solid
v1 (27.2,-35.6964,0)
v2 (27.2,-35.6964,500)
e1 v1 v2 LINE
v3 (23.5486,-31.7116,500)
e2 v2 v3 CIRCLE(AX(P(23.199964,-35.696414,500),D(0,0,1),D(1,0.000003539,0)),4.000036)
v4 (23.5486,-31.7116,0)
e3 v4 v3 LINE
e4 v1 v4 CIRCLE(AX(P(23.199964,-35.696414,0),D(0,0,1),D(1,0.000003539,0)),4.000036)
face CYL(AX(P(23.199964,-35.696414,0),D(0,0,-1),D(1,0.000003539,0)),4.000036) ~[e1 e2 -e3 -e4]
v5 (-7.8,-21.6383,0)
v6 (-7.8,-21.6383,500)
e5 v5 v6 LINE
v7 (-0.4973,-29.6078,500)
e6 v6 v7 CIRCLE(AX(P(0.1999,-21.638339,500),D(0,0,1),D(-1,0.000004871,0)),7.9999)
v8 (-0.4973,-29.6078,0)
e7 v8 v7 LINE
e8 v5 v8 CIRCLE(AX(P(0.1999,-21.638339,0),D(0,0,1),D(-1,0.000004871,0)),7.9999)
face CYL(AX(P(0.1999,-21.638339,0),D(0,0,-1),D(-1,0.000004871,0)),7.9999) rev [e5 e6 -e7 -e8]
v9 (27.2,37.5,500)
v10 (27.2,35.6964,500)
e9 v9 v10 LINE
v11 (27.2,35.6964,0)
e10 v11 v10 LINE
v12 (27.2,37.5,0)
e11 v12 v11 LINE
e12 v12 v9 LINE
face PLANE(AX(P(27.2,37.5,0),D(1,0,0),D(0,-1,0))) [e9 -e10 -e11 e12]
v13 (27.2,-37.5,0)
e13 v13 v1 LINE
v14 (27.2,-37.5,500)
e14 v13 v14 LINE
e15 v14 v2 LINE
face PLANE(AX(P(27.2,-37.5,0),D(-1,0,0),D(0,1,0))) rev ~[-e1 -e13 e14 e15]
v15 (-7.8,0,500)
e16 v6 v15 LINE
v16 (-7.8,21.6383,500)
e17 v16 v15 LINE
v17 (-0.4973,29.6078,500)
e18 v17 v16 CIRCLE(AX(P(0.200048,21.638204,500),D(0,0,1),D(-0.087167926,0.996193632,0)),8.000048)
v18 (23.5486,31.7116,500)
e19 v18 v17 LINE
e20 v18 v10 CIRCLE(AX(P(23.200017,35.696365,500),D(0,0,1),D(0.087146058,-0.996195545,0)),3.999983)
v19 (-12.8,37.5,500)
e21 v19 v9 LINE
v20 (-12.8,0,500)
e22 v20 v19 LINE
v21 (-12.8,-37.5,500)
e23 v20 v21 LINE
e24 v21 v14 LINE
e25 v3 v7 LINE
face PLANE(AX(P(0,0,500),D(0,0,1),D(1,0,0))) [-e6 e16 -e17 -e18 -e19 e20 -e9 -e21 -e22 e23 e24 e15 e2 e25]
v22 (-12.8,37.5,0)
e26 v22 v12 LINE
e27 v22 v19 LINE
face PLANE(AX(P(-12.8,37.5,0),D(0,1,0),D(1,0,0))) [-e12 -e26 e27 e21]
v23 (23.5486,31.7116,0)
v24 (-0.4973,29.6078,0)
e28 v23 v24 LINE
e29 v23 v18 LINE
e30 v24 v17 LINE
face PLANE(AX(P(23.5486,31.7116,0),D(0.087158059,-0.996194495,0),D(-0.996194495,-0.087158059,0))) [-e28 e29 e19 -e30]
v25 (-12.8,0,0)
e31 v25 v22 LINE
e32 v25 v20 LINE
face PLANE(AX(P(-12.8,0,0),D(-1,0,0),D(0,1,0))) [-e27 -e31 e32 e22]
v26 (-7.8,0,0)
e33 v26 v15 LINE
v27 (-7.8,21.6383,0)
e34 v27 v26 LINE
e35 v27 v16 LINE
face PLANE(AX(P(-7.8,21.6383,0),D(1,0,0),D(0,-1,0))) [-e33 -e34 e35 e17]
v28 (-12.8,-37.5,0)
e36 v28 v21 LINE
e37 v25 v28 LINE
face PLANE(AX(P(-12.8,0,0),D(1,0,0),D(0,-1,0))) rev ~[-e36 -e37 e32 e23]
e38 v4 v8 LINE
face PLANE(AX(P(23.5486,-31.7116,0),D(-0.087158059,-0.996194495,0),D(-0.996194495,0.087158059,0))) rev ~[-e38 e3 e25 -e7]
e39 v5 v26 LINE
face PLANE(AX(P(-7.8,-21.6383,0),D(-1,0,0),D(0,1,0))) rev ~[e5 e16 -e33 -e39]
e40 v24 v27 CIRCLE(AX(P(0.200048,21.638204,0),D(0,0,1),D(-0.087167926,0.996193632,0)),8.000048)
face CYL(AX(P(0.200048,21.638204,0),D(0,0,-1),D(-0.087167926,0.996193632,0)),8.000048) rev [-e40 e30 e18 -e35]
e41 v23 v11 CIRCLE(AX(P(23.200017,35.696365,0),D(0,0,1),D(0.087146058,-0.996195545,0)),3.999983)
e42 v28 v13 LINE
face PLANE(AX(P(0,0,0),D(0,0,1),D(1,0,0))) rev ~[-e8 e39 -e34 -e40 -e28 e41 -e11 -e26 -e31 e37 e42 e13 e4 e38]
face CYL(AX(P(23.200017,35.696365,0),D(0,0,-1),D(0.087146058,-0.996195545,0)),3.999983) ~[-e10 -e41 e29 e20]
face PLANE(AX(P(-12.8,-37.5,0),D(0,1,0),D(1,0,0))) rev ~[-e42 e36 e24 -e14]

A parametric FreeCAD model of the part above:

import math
import FreeCAD as App
import Part
import Sketcher
from FreeCAD import Vector
Q = App.Units.Quantity

doc = App.newDocument("Part")
params = doc.addObject("Spreadsheet::Sheet", "Params")
for row, (alias, value) in enumerate([
    ("sketch1_radius", "4 mm"),
    ("sketch1_radius2", "8 mm"),
    ("sketch1_width", "40 mm"),
    ("pad1_length", "500 mm"),
], start=1):
    params.set(f"A{row}", alias)
    params.set(f"B{row}", "=" + value)
    params.setAlias(f"B{row}", alias)

body = doc.addObject("PartDesign::Body", "Body")

# Sketch on XY plane
sketch1 = body.newObject("Sketcher::SketchObject", "Sketch")
sketch1.AttachmentSupport = (doc.getObject("XY_Plane"), [""])
sketch1.MapMode = "FlatFace"
sketch1.addGeometry(Part.LineSegment(Vector(-12.8, 37.5, 0), Vector(-12.8, -37.5, 0)), False)
sketch1.addGeometry(Part.LineSegment(Vector(-12.8, -37.5, 0), Vector(27.2, -37.5, 0)), False)
sketch1.addGeometry(Part.LineSegment(Vector(27.2, -37.5, 0), Vector(27.2, -35.6964, 0)), False)
sketch1.addGeometry(Part.ArcOfCircle(Part.Circle(Vector(23.2, -35.6964, 0), Vector(0, 0, 1), 4), math.radians(0), math.radians(85.000354)), False)
sketch1.addGeometry(Part.LineSegment(Vector(23.5486, -31.7116, 0), Vector(-0.4973, -29.6078, 0)), False)
sketch1.addGeometry(Part.ArcOfCircle(Part.Circle(Vector(0.2, -21.6383, 0), Vector(0, 0, 1), 8), math.radians(180), math.radians(264.999578)), False)
sketch1.addGeometry(Part.LineSegment(Vector(-7.8, -21.6383, 0), Vector(-7.8, 21.6383, 0)), False)
sketch1.addGeometry(Part.ArcOfCircle(Part.Circle(Vector(0.2, 21.6383, 0), Vector(0, 0, 1), 7.999947), math.radians(95.000422), math.radians(180)), False)
sketch1.addGeometry(Part.LineSegment(Vector(-0.4973, 29.6078, 0), Vector(23.5486, 31.7116, 0)), False)
sketch1.addGeometry(Part.ArcOfCircle(Part.Circle(Vector(23.2, 35.6964, 0), Vector(0, 0, 1), 4.000019), math.radians(-85.000354), math.radians(0)), False)
sketch1.addGeometry(Part.LineSegment(Vector(27.2, 35.6964, 0), Vector(27.2, 37.5, 0)), False)
sketch1.addGeometry(Part.LineSegment(Vector(27.2, 37.5, 0), Vector(-12.8, 37.5, 0)), False)
sketch1.addConstraint(Sketcher.Constraint("Coincident", 0, 2, 1, 1))
sketch1.addConstraint(Sketcher.Constraint("Coincident", 1, 2, 2, 1))
sketch1.addConstraint(Sketcher.Constraint("Tangent", 2, 2, 3, 1))
sketch1.addConstraint(Sketcher.Constraint("Tangent", 3, 2, 4, 1))
sketch1.addConstraint(Sketcher.Constraint("Tangent", 4, 2, 5, 2))
sketch1.addConstraint(Sketcher.Constraint("Tangent", 5, 1, 6, 1))
sketch1.addConstraint(Sketcher.Constraint("Tangent", 6, 2, 7, 2))
sketch1.addConstraint(Sketcher.Constraint("Tangent", 7, 1, 8, 1))
sketch1.addConstraint(Sketcher.Constraint("Tangent", 8, 2, 9, 1))
sketch1.addConstraint(Sketcher.Constraint("Tangent", 9, 2, 10, 1))
sketch1.addConstraint(Sketcher.Constraint("Coincident", 10, 2, 11, 1))
sketch1.addConstraint(Sketcher.Constraint("Coincident", 11, 2, 0, 1))
sketch1.addConstraint(Sketcher.Constraint("Vertical", 0))
sketch1.addConstraint(Sketcher.Constraint("Horizontal", 1))
sketch1.addConstraint(Sketcher.Constraint("Vertical", 2))
sketch1.addConstraint(Sketcher.Constraint("Vertical", 6))
sketch1.addConstraint(Sketcher.Constraint("Vertical", 10))
sketch1.addConstraint(Sketcher.Constraint("Horizontal", 11))
sketch1.addConstraint(Sketcher.Constraint("Equal", 5, 7))
sketch1.addConstraint(Sketcher.Constraint("Equal", 3, 9))
sketch1.addConstraint(Sketcher.Constraint("Symmetric", 3, 3, 9, 3, -1))
sketch1.addConstraint(Sketcher.Constraint("Vertical", 4, 2, 7, 1))
sketch1.addConstraint(Sketcher.Constraint("Equal", 2, 10))
sketch1.addConstraint(Sketcher.Constraint("Radius", 3, 4.0))
sketch1.addConstraint(Sketcher.Constraint("Radius", 5, 8.0))
sketch1.addConstraint(Sketcher.Constraint("DistanceX", 1, 1, 1, 2, 40.0))
sketch1.addConstraint(Sketcher.Constraint("Angle", 8, Q("5.0001 deg")))
sketch1.addConstraint(Sketcher.Constraint("DistanceX", 0, 2, 5, 1, 5.0))
sketch1.addConstraint(Sketcher.Constraint("DistanceX", 0, 2, -1, 1, 12.8))
sketch1.addConstraint(Sketcher.Constraint("DistanceY", 0, 2, -1, 1, 37.5))
sketch1.addConstraint(Sketcher.Constraint("DistanceY", 5, 3, 8, 2, 53.35))
sketch1.setExpression("Constraints[23]", "Params.sketch1_radius")
sketch1.setExpression("Constraints[24]", "Params.sketch1_radius2")
sketch1.setExpression("Constraints[25]", "Params.sketch1_width")
pad1 = body.newObject("PartDesign::Pad", "Pad")
pad1.Profile = sketch1
pad1.setExpression("Length", "Params.pad1_length")

doc.recompute()
